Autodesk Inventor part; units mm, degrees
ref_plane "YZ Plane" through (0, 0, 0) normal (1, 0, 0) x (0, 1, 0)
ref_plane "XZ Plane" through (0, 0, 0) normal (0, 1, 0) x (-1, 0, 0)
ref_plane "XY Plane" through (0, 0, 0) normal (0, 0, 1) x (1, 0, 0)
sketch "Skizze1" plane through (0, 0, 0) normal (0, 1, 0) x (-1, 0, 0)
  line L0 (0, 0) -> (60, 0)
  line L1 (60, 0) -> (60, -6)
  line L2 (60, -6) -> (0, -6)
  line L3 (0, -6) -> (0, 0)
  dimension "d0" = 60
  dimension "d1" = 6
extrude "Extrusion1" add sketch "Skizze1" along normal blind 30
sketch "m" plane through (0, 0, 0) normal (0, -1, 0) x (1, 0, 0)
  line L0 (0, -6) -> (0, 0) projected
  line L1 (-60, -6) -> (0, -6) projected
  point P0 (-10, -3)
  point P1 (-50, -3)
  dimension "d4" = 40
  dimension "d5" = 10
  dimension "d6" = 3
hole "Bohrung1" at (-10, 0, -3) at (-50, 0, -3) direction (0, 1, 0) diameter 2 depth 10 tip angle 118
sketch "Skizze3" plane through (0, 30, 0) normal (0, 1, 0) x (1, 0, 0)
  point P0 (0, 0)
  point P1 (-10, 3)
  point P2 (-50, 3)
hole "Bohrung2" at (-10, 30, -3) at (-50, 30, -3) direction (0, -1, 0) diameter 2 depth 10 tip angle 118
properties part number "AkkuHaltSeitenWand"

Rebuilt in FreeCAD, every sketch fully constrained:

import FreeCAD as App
import Part
import Sketcher


def add_polygon(sketch, points):
    """Adds a closed chain of lines whose ends are joined by coincident constraints."""
    first, n = sketch.GeometryCount, len(points)
    for a, b in zip(points, points[1:] + points[:1]):
        sketch.addGeometry(Part.LineSegment(App.Vector(*a, 0), App.Vector(*b, 0)), False)
    for i in range(n):
        sketch.addConstraint(Sketcher.Constraint("Coincident", first + i, 2, first + (i + 1) % n, 1))

doc = App.newDocument("Part")
body = doc.addObject("PartDesign::Body", "Body")

# Sketch on XZ plane
sketch1 = body.newObject("Sketcher::SketchObject", "Sketch")
sketch1.AttachmentSupport = (doc.getObject("XZ_Plane"), [""])
sketch1.MapMode = "FlatFace"
add_polygon(sketch1, [(-60, 0), (0, 0), (0, -6), (-60, -6)])  # lines 0-3
sketch1.addConstraint([
    Sketcher.Constraint("Horizontal", 0),
    Sketcher.Constraint("Vertical", 1),
    Sketcher.Constraint("Horizontal", 2),
    Sketcher.Constraint("Vertical", 3),
    Sketcher.Constraint("Coincident", 0, 2, -1, 1),
    Sketcher.Constraint("DistanceX", 0, 1, 0, 2, 60.0),
    Sketcher.Constraint("DistanceY", 1, 2, 1, 1, 6.0),
])
pad1 = body.newObject("PartDesign::Pad", "Pad")
pad1.Profile = sketch1
pad1.Length = 30
pad1.Reversed = True

# Sketch on XZ plane
sketch2 = body.newObject("Sketcher::SketchObject", "Sketch001")
sketch2.AttachmentSupport = (doc.getObject("XZ_Plane"), [""])
sketch2.MapMode = "FlatFace"
sketch2.addGeometry([
    Part.Circle(App.Vector(-10, -3, 0), App.Vector(0, 0, 1), 1),
    Part.Circle(App.Vector(-50, -3, 0), App.Vector(0, 0, 1), 1),
], False)
sketch2.addConstraint([
    Sketcher.Constraint("Equal", 0, 1),
    Sketcher.Constraint("Horizontal", 0, 3, 1, 3),
    Sketcher.Constraint("Diameter", 0, 2.0),
    Sketcher.Constraint("DistanceX", 0, 3, -1, 1, 10.0),
    Sketcher.Constraint("DistanceY", 0, 3, -1, 1, 3.0),
    Sketcher.Constraint("DistanceX", 1, 3, -1, 1, 50.0),
])
doc.recompute()
hole = body.newObject("PartDesign::Hole", "Hole")
hole.Profile = sketch2
hole.ThreadType = "None"
hole.Diameter = 2
hole.DepthType = "Dimension"
hole.Depth = 10
hole.DrillPoint = "Angled"
hole.DrillPointAngle = 118

# Sketch on XZ plane
sketch3 = body.newObject("Sketcher::SketchObject", "Sketch002")
sketch3.AttachmentSupport = (doc.getObject("XZ_Plane"), [""])
sketch3.MapMode = "FlatFace"
sketch3.AttachmentOffset = App.Placement(App.Vector(0, 0, -30), App.Rotation())
sketch3.addGeometry([
    Part.Circle(App.Vector(-10, -3, 0), App.Vector(0, 0, 1), 1),
    Part.Circle(App.Vector(-50, -3, 0), App.Vector(0, 0, 1), 1),
], False)
sketch3.addConstraint([
    Sketcher.Constraint("Equal", 0, 1),
    Sketcher.Constraint("Horizontal", 0, 3, 1, 3),
    Sketcher.Constraint("Diameter", 0, 2.0),
    Sketcher.Constraint("DistanceX", 0, 3, -1, 1, 10.0),
    Sketcher.Constraint("DistanceY", 0, 3, -1, 1, 3.0),
    Sketcher.Constraint("DistanceX", 1, 3, -1, 1, 50.0),
])
doc.recompute()
hole2 = body.newObject("PartDesign::Hole", "Hole001")
hole2.Profile = sketch3
hole2.ThreadType = "None"
hole2.Diameter = 2
hole2.DepthType = "Dimension"
hole2.Depth = 10
hole2.DrillPoint = "Angled"
hole2.DrillPointAngle = 118
hole2.Reversed = True

doc.recompute()
